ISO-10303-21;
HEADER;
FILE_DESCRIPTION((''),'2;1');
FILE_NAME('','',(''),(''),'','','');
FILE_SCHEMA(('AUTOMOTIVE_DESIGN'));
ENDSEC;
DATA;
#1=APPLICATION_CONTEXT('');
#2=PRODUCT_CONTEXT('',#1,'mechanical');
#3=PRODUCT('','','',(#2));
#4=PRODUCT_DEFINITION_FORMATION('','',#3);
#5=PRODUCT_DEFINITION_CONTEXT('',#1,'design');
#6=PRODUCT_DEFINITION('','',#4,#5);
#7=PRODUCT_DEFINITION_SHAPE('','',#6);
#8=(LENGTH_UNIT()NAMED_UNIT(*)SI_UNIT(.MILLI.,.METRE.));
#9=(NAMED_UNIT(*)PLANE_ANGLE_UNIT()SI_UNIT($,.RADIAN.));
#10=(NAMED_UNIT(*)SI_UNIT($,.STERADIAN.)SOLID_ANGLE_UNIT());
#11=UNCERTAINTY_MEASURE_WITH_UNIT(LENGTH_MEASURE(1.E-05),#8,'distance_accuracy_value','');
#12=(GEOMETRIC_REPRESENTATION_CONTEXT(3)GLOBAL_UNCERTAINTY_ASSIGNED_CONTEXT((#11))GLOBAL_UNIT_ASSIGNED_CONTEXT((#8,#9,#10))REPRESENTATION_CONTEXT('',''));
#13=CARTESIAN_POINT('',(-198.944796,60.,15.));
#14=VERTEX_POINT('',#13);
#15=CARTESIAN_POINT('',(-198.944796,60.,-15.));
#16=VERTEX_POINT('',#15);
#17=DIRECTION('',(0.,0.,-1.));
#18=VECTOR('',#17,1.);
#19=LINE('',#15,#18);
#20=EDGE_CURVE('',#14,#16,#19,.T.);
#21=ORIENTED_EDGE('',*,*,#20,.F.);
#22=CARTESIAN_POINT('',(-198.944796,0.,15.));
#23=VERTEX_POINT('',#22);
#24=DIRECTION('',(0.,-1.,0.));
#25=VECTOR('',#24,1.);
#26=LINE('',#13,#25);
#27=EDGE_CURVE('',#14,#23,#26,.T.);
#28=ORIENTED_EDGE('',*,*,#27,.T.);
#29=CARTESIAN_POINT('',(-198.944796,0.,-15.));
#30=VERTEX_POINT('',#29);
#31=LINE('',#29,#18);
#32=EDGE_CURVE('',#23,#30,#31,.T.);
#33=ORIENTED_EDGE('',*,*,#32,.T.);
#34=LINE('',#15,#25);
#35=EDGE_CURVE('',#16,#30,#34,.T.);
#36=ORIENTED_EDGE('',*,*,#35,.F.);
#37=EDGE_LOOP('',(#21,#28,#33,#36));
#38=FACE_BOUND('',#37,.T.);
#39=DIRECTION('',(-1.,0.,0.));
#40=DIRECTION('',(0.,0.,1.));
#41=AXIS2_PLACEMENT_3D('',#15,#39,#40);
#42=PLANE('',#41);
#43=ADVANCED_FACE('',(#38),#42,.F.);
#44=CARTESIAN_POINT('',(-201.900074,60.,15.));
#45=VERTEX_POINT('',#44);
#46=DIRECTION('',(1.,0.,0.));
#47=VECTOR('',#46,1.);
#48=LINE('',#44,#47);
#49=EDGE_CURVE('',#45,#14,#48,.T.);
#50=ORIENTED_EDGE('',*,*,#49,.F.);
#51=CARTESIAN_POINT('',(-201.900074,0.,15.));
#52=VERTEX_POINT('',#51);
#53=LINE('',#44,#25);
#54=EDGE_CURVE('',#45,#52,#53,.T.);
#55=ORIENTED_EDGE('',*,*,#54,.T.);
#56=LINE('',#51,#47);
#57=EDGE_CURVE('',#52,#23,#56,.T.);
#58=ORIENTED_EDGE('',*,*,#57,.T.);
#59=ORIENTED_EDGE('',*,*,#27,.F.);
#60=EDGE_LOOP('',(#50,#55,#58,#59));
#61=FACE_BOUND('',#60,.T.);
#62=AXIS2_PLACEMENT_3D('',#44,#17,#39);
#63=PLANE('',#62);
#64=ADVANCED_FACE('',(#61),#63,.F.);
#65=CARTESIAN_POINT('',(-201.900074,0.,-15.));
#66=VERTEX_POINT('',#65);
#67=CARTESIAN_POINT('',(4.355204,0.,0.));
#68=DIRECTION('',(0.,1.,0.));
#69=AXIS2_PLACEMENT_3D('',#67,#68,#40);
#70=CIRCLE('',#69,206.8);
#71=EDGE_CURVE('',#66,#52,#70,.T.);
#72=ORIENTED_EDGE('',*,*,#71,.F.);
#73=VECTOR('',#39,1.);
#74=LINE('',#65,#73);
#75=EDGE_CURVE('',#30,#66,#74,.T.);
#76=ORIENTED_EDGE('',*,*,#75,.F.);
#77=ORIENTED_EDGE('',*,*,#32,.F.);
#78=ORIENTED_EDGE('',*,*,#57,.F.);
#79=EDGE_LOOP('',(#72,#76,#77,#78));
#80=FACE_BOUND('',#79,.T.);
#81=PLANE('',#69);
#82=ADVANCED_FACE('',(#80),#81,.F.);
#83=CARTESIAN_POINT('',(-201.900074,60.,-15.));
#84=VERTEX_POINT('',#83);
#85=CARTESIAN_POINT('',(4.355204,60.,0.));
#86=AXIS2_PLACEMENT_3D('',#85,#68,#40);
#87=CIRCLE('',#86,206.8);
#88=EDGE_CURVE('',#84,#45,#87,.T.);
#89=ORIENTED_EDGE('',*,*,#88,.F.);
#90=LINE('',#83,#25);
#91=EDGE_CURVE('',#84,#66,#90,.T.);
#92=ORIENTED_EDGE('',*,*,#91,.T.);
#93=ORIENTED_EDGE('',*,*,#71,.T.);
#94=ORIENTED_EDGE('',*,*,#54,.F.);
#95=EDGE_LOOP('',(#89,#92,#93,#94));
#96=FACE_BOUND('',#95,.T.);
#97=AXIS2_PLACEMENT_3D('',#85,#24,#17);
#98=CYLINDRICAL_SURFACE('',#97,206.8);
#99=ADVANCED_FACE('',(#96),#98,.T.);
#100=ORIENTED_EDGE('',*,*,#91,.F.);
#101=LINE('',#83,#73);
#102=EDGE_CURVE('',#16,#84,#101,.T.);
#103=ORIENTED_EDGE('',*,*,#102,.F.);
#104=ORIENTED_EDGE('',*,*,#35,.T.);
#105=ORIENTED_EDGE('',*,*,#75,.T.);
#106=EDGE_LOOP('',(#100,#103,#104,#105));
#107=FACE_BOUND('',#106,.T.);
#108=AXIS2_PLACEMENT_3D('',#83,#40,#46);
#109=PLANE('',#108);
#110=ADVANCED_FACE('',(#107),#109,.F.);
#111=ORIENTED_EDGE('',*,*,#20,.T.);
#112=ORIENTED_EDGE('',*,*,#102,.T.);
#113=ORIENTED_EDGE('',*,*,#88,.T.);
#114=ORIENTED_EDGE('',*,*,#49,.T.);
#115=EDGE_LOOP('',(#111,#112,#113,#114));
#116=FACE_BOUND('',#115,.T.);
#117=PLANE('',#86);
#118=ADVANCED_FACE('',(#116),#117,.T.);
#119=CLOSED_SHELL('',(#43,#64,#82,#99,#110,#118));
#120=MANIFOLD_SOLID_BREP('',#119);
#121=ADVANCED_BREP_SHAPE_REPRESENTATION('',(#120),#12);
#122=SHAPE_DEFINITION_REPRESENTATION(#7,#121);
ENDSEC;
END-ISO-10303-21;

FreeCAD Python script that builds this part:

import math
import FreeCAD as App
import Part
import Sketcher

doc = App.newDocument("Part")
body = doc.addObject("PartDesign::Body", "Body")

sketch1 = body.newObject("Sketcher::SketchObject", "Sketch")
sketch1.AttachmentSupport = (doc.getObject("XZ_Plane"), [""])
sketch1.MapMode = "FlatFace"
sketch1.addGeometry([
    Part.LineSegment(App.Vector(-198.944796, -15, 0), App.Vector(-201.900074, -15, 0)),
    Part.ArcOfCircle(Part.Circle(App.Vector(4.355204, 0, 0), App.Vector(0, 0, 1), 206.8), math.radians(175.840464), math.radians(184.159536)),
    Part.LineSegment(App.Vector(-201.900074, 15, 0), App.Vector(-198.944796, 15, 0)),
    Part.LineSegment(App.Vector(-198.944796, 15, 0), App.Vector(-198.944796, -15, 0)),
], False)
sketch1.addConstraint([
    Sketcher.Constraint("Coincident", 0, 2, 1, 2),
    Sketcher.Constraint("Coincident", 1, 1, 2, 1),
    Sketcher.Constraint("Coincident", 2, 2, 3, 1),
    Sketcher.Constraint("Coincident", 3, 2, 0, 1),
    Sketcher.Constraint("Horizontal", 0),
    Sketcher.Constraint("Horizontal", 2),
    Sketcher.Constraint("Vertical", 3),
    Sketcher.Constraint("Symmetric", 0, 2, 1, 1, -1),
    Sketcher.Constraint("Radius", 1, 206.8),
    Sketcher.Constraint("DistanceY", 3, 2, 3, 1, 30.0),
    Sketcher.Constraint("DistanceX", 2, 2, 1, 3, 203.3),
    Sketcher.Constraint("DistanceX", -1, 1, 1, 3, 4.355204),
])
pad1 = body.newObject("PartDesign::Pad", "Pad")
pad1.Profile = sketch1
pad1.Length = 60
pad1.Reversed = True

doc.recompute()
